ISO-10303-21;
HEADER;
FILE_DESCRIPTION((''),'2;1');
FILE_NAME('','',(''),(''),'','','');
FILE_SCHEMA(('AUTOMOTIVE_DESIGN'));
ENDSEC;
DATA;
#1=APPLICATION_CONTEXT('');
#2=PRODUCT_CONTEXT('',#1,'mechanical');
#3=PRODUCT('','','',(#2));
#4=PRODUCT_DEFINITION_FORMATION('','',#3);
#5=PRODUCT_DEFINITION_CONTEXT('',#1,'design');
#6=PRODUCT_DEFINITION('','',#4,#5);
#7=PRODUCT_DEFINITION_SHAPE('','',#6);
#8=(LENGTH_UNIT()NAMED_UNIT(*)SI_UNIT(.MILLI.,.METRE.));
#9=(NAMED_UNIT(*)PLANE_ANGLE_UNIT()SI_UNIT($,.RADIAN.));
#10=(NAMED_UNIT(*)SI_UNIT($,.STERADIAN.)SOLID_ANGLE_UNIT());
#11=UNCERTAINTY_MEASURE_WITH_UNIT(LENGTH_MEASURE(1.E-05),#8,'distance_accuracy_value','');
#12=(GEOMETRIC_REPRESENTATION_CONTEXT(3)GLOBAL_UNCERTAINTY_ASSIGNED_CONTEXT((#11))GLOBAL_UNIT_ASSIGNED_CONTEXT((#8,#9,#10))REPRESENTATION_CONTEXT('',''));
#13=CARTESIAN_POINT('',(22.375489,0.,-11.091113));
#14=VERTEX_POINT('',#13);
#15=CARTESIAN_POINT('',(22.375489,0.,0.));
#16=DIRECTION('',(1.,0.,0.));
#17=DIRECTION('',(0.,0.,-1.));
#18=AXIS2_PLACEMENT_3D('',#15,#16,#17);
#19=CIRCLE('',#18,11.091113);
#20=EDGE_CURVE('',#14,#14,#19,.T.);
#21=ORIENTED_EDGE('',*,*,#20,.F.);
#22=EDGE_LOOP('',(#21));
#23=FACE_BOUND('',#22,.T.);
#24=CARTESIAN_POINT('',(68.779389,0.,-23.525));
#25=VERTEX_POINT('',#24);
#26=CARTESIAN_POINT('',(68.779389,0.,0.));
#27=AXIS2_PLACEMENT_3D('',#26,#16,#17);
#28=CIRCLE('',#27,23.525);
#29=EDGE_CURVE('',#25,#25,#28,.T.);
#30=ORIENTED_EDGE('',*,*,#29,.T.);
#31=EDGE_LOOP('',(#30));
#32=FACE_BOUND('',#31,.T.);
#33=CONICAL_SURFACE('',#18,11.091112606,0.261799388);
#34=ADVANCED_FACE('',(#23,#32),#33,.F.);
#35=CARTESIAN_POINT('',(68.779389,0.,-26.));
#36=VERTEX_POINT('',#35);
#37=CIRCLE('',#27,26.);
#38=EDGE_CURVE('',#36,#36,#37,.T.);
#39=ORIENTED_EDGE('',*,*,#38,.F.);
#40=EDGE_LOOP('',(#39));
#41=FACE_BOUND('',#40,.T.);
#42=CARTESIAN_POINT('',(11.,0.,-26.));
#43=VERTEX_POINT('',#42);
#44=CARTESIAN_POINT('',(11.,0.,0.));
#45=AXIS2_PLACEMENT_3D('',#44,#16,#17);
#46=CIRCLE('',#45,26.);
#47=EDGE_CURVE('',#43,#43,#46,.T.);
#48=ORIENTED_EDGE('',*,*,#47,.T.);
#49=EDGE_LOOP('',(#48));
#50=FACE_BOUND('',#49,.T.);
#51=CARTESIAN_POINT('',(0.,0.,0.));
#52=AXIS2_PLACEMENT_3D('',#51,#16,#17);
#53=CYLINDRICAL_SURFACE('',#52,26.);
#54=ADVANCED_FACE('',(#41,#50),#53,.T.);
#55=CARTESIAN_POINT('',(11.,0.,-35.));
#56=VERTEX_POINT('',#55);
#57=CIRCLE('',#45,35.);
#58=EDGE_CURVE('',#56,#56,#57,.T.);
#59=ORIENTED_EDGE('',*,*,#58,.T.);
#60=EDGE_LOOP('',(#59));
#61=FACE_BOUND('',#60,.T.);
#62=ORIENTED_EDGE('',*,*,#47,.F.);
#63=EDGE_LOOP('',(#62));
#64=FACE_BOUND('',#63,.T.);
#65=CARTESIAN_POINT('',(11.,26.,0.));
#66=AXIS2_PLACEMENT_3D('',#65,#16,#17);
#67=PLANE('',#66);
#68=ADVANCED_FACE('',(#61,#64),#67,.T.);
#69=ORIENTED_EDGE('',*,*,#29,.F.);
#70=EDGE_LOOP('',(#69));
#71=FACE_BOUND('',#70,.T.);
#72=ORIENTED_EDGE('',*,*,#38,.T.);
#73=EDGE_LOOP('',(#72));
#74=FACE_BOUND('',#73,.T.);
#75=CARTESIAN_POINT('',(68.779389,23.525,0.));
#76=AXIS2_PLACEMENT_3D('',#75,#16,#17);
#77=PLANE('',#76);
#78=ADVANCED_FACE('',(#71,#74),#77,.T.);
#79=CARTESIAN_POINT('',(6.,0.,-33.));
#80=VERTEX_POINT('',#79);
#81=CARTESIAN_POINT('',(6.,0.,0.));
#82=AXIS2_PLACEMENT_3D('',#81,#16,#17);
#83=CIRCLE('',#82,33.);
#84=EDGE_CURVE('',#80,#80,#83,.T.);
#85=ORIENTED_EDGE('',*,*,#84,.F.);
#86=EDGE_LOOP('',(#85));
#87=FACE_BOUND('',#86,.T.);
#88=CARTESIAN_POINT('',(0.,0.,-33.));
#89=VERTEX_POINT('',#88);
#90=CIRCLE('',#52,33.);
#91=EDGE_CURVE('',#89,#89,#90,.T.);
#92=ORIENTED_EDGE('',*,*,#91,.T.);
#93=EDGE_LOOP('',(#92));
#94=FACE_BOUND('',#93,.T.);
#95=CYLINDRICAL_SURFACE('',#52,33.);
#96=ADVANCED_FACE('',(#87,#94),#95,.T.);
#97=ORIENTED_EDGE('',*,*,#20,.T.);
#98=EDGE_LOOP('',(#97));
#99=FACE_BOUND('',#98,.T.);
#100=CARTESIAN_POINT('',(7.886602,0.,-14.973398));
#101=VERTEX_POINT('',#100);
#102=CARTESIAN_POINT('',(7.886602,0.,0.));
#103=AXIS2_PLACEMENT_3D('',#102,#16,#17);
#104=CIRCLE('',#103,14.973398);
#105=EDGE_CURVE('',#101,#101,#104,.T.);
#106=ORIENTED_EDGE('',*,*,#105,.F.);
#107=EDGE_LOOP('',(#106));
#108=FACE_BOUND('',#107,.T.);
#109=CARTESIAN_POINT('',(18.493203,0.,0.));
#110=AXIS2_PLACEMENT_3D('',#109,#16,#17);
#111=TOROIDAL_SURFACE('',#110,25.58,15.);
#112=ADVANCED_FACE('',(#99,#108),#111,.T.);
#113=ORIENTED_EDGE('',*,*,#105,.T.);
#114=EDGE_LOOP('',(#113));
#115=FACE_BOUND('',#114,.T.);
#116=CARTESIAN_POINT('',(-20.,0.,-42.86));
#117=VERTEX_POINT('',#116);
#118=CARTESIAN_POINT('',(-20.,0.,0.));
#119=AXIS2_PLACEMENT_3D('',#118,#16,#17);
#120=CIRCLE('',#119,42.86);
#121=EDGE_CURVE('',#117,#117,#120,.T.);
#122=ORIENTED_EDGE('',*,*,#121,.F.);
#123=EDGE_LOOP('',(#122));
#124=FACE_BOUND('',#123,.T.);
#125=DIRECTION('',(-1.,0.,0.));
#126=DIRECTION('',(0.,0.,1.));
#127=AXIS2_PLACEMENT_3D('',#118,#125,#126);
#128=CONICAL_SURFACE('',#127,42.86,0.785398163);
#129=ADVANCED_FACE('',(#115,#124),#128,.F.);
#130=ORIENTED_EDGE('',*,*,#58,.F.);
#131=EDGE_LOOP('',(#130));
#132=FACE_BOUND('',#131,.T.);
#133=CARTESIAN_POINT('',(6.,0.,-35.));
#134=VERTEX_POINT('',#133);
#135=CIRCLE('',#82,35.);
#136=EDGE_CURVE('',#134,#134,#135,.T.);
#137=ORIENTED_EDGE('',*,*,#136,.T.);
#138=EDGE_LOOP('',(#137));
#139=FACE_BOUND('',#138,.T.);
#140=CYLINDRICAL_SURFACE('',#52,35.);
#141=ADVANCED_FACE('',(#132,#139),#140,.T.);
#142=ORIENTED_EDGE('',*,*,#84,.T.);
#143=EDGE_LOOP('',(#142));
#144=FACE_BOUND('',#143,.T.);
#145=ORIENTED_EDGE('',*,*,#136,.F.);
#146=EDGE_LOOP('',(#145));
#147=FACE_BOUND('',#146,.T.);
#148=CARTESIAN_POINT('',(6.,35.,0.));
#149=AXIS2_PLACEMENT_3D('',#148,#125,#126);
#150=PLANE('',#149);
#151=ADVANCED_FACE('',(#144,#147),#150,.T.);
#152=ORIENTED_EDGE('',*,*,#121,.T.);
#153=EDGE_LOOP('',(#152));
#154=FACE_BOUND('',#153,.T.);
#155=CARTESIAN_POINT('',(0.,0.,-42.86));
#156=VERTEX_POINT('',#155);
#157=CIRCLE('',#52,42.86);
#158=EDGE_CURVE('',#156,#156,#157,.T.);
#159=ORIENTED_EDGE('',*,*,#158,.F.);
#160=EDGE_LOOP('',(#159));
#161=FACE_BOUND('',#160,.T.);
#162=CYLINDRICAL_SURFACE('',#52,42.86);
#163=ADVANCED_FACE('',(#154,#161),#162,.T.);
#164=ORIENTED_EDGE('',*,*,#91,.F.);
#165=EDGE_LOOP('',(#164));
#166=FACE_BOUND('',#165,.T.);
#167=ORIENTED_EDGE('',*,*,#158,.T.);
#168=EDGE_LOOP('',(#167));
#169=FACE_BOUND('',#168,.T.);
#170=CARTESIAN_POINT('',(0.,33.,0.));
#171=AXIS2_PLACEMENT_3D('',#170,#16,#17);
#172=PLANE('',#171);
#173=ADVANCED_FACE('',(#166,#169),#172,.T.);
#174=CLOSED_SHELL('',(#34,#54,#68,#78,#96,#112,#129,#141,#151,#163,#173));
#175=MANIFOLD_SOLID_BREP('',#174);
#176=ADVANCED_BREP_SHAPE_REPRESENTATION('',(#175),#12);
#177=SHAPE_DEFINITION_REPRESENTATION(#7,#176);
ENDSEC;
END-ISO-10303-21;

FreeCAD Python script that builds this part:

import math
import FreeCAD as App
import Part
import Sketcher
Q = App.Units.Quantity

doc = App.newDocument("Part")
params = doc.addObject("Spreadsheet::Sheet", "Params")
for row, (alias, value) in enumerate([
    ("sketch1_radius", "15 mm"),
    ("sketch1_width", "5 mm"),
    ("sketch1_width2", "6 mm"),
    ("sketch1_width3", "20 mm"),
    ("sketch1_height", "9 mm"),
    ("revolution_angle", "360 deg"),
], start=1):
    params.set(f"A{row}", alias)
    params.set(f"B{row}", "=" + value)
    params.setAlias(f"B{row}", alias)

body = doc.addObject("PartDesign::Body", "Body")

# Sketch on XY plane
sketch1 = doc.addObject("Sketcher::SketchObject", "Sketch")
body.addObject(sketch1)
sketch1.AttachmentSupport = (doc.XY_Plane, [""])
sketch1.MapMode = "FlatFace"
sketch1.addGeometry([
    Part.LineSegment(App.Vector(-20, 42.9, 0), App.Vector(7.9, 15, 0)),  # 0
    Part.ArcOfCircle(Part.Circle(App.Vector(18.5, 25.6, 0), App.Vector(0, 0, 1), 15), math.radians(-135), math.radians(-75)),  # 1
    Part.LineSegment(App.Vector(22.4, 11.1, 0), App.Vector(68.8, 23.5, 0)),  # 2
    Part.LineSegment(App.Vector(68.8, 23.5, 0), App.Vector(68.8, 26, 0)),  # 3
    Part.LineSegment(App.Vector(68.8, 26, 0), App.Vector(11, 26, 0)),  # 4
    Part.LineSegment(App.Vector(11, 26, 0), App.Vector(11, 35, 0)),  # 5
    Part.LineSegment(App.Vector(11, 35, 0), App.Vector(6, 35, 0)),  # 6
    Part.LineSegment(App.Vector(6, 35, 0), App.Vector(6, 33, 0)),  # 7
    Part.LineSegment(App.Vector(6, 33, 0), App.Vector(0, 33, 0)),  # 8
    Part.LineSegment(App.Vector(0, 33, 0), App.Vector(0, 42.9, 0)),  # 9
    Part.LineSegment(App.Vector(0, 42.9, 0), App.Vector(-20, 42.9, 0)),  # 10
], False)
sketch1.addConstraint([
    Sketcher.Constraint("Tangent", 0, 2, 1, 1),
    Sketcher.Constraint("Tangent", 1, 2, 2, 1),
    Sketcher.Constraint("Coincident", 2, 2, 3, 1),
    Sketcher.Constraint("Coincident", 3, 2, 4, 1),
    Sketcher.Constraint("Coincident", 4, 2, 5, 1),
    Sketcher.Constraint("Coincident", 5, 2, 6, 1),
    Sketcher.Constraint("Coincident", 6, 2, 7, 1),
    Sketcher.Constraint("Coincident", 7, 2, 8, 1),
    Sketcher.Constraint("Coincident", 8, 2, 9, 1),
    Sketcher.Constraint("Coincident", 9, 2, 10, 1),
    Sketcher.Constraint("Coincident", 10, 2, 0, 1),
    Sketcher.Constraint("Vertical", 3),
    Sketcher.Constraint("Horizontal", 4),
    Sketcher.Constraint("Vertical", 5),
    Sketcher.Constraint("Horizontal", 6),
    Sketcher.Constraint("Vertical", 7),
    Sketcher.Constraint("Horizontal", 8),
    Sketcher.Constraint("Vertical", 9),
    Sketcher.Constraint("Horizontal", 10),
    Sketcher.Constraint("PointOnObject", 8, 2, -2),
    Sketcher.Constraint("Radius", 1, 15.0),
    Sketcher.Constraint("DistanceX", 6, 2, 6, 1, 5.0),
    Sketcher.Constraint("DistanceX", 8, 2, 8, 1, 6.0),
    Sketcher.Constraint("DistanceX", 10, 2, 10, 1, 20.0),
    Sketcher.Constraint("DistanceY", 5, 1, 5, 2, 9.0),
    Sketcher.Constraint("DistanceY", 7, 2, 7, 1, 2.0),
    Sketcher.Constraint("Angle", 0, Q("-45 deg")),
    Sketcher.Constraint("Angle", 2, Q("15 deg")),
    Sketcher.Constraint("DistanceY", -1, 1, 3, 2, 26.0),
    Sketcher.Constraint("DistanceY", 9, 1, 9, 2, 9.86),
    Sketcher.Constraint("DistanceY", 3, 1, 3, 2, 2.475),
    Sketcher.Constraint("DistanceY", -1, 1, 1, 3, 25.58),
])
sketch1.setExpression("Constraints[20]", "Params.sketch1_radius")
sketch1.setExpression("Constraints[21]", "Params.sketch1_width")
sketch1.setExpression("Constraints[22]", "Params.sketch1_width2")
sketch1.setExpression("Constraints[23]", "Params.sketch1_width3")
sketch1.setExpression("Constraints[24]", "Params.sketch1_height")
revolution = doc.addObject("PartDesign::Revolution", "Revolution")
body.addObject(revolution)
revolution.Profile = sketch1
revolution.ReferenceAxis = (sketch1, ["H_Axis"])
revolution.setExpression("Angle", "Params.revolution_angle")

doc.recompute()
